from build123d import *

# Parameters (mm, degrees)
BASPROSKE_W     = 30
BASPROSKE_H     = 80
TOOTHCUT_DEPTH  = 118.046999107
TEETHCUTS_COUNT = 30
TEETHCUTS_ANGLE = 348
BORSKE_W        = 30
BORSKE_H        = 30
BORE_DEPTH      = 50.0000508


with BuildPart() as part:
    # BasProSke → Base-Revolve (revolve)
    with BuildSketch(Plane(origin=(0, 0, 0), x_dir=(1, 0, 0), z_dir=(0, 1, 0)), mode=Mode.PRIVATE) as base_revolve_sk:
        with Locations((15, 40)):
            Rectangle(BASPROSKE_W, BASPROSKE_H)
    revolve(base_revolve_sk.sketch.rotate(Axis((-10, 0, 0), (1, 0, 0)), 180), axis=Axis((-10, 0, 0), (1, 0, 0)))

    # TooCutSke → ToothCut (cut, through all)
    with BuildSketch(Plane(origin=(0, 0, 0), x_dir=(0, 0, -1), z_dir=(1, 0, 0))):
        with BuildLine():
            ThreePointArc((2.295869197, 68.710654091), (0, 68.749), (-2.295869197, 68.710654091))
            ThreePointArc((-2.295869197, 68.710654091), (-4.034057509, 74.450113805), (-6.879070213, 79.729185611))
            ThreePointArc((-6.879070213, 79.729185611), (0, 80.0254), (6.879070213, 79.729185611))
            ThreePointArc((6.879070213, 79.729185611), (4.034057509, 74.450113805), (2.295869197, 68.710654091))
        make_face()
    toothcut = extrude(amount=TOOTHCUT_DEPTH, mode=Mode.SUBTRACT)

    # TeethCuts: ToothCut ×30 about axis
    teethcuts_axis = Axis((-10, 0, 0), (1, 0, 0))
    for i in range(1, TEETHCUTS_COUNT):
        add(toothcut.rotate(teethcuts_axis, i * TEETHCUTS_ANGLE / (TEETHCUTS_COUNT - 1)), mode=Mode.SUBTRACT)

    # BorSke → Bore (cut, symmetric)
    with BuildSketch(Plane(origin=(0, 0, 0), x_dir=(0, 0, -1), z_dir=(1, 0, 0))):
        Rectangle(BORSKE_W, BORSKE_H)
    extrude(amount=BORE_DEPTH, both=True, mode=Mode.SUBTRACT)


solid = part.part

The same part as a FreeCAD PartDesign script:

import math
import FreeCAD as App
import Part
import Sketcher
Q = App.Units.Quantity


def add_polygon(sketch, points):
    """Adds a closed chain of lines whose ends are joined by coincident constraints."""
    first, n = sketch.GeometryCount, len(points)
    for a, b in zip(points, points[1:] + points[:1]):
        sketch.addGeometry(Part.LineSegment(App.Vector(*a, 0), App.Vector(*b, 0)), False)
    for i in range(n):
        sketch.addConstraint(Sketcher.Constraint("Coincident", first + i, 2, first + (i + 1) % n, 1))

doc = App.newDocument("Part")
params = doc.addObject("Spreadsheet::Sheet", "Params")
for row, (alias, value) in enumerate([
    ("sketch1_width", "30 mm"),
    ("sketch1_height", "80 mm"),
    ("revolution_angle", "360 deg"),
    ("sketch2_radius", "30 mm"),
    ("sketch3_width", "30 mm"),
    ("pocket2_length", "100.000102 mm"),
], start=1):
    params.set(f"A{row}", alias)
    params.set(f"B{row}", "=" + value)
    params.setAlias(f"B{row}", alias)

body = doc.addObject("PartDesign::Body", "Body")

# Sketch on XZ plane
sketch1 = body.newObject("Sketcher::SketchObject", "Sketch")
sketch1.AttachmentSupport = (doc.getObject("XZ_Plane"), [""])
sketch1.MapMode = "FlatFace"
add_polygon(sketch1, [(0, -80), (0, 0), (30, 0), (30, -80)])  # lines 0-3
sketch1.addConstraint([
    Sketcher.Constraint("Vertical", 0),
    Sketcher.Constraint("Horizontal", 1),
    Sketcher.Constraint("Vertical", 2),
    Sketcher.Constraint("Horizontal", 3),
    Sketcher.Constraint("Coincident", 0, 2, -1, 1),
    Sketcher.Constraint("DistanceX", 1, 1, 1, 2, Q("30 mm")),
    Sketcher.Constraint("DistanceY", 0, 1, 0, 2, Q("80 mm")),
])
sketch1.setExpression("Constraints[9]", "Params.sketch1_width")
sketch1.setExpression("Constraints[10]", "Params.sketch1_height")
revolution = body.newObject("PartDesign::Revolution", "Revolution")
revolution.Profile = sketch1
revolution.ReferenceAxis = (sketch1, ["H_Axis"])
revolution.setExpression("Angle", "Params.revolution_angle")

# Sketch on YZ plane
sketch2 = body.newObject("Sketcher::SketchObject", "Sketch001")
sketch2.AttachmentSupport = (doc.getObject("YZ_Plane"), [""])
sketch2.MapMode = "FlatFace"
sketch2.addGeometry([
    Part.ArcOfCircle(Part.Circle(App.Vector(0, 0, 0), App.Vector(0, 0, 1), 68.7), math.radians(-1.91), math.radians(1.91)),
    Part.ArcOfCircle(Part.Circle(App.Vector(62.9, -31.7, 0), App.Vector(0, 0, 1), 30), math.radians(56), math.radians(79)),
    Part.ArcOfCircle(Part.Circle(App.Vector(0, 0, 0), App.Vector(0, 0, 1), 80), math.radians(-4.93), math.radians(4.93)),
    Part.ArcOfCircle(Part.Circle(App.Vector(62.9, 31.7, 0), App.Vector(0, 0, 1), 30), math.radians(-79), math.radians(-56)),
], False)
sketch2.addConstraint([
    Sketcher.Constraint("Coincident", 0, 1, 1, 2),
    Sketcher.Constraint("Coincident", 1, 1, 2, 1),
    Sketcher.Constraint("Coincident", 2, 2, 3, 2),
    Sketcher.Constraint("Coincident", 3, 1, 0, 2),
    Sketcher.Constraint("Coincident", 0, 3, -1, 1),
    Sketcher.Constraint("Coincident", 2, 3, -1, 1),
    Sketcher.Constraint("Equal", 1, 3),
    Sketcher.Constraint("Symmetric", 1, 3, 3, 3, -1),
    Sketcher.Constraint("Radius", 1, Q("30 mm")),
    Sketcher.Constraint("Radius", 0, Q("68.749 mm")),
    Sketcher.Constraint("Radius", 2, Q("80.0254 mm")),
    Sketcher.Constraint("DistanceY", 1, 3, 0, 1, Q("29.4375 mm")),
    Sketcher.Constraint("DistanceY", 1, 3, -1, 1, Q("31.73337 mm")),
])
sketch2.setExpression("Constraints[8]", "Params.sketch2_radius")
pocket1 = body.newObject("PartDesign::Pocket", "Pocket")
pocket1.Profile = sketch2
pocket1.Type = "ThroughAll"
pocket1.Reversed = True
doc.recompute()

polarpattern = body.newObject("PartDesign::PolarPattern", "PolarPattern")
polarpattern.Originals = [pocket1]
polarpattern.Axis = (doc.getObject("X_Axis"), [""])
polarpattern.Angle = 360
polarpattern.Occurrences = 30
body.Tip = polarpattern

# Sketch on YZ plane
sketch3 = body.newObject("Sketcher::SketchObject", "Sketch002")
sketch3.AttachmentSupport = (doc.getObject("YZ_Plane"), [""])
sketch3.MapMode = "FlatFace"
add_polygon(sketch3, [(15, 15), (-15, 15), (-15, -15), (15, -15)])  # lines 0-3
sketch3.addConstraint([
    Sketcher.Constraint("Horizontal", 0),
    Sketcher.Constraint("Vertical", 1),
    Sketcher.Constraint("Horizontal", 2),
    Sketcher.Constraint("Vertical", 3),
    Sketcher.Constraint("Symmetric", 0, 2, 2, 2, -1, 1),
    Sketcher.Constraint("Equal", 2, 1),
    Sketcher.Constraint("DistanceX", 0, 2, 0, 1, Q("30 mm")),
])
sketch3.setExpression("Constraints[10]", "Params.sketch3_width")
pocket2 = body.newObject("PartDesign::Pocket", "Pocket001")
pocket2.Profile = sketch3
pocket2.setExpression("Length", "Params.pocket2_length")
pocket2.Midplane = True

doc.recompute()
